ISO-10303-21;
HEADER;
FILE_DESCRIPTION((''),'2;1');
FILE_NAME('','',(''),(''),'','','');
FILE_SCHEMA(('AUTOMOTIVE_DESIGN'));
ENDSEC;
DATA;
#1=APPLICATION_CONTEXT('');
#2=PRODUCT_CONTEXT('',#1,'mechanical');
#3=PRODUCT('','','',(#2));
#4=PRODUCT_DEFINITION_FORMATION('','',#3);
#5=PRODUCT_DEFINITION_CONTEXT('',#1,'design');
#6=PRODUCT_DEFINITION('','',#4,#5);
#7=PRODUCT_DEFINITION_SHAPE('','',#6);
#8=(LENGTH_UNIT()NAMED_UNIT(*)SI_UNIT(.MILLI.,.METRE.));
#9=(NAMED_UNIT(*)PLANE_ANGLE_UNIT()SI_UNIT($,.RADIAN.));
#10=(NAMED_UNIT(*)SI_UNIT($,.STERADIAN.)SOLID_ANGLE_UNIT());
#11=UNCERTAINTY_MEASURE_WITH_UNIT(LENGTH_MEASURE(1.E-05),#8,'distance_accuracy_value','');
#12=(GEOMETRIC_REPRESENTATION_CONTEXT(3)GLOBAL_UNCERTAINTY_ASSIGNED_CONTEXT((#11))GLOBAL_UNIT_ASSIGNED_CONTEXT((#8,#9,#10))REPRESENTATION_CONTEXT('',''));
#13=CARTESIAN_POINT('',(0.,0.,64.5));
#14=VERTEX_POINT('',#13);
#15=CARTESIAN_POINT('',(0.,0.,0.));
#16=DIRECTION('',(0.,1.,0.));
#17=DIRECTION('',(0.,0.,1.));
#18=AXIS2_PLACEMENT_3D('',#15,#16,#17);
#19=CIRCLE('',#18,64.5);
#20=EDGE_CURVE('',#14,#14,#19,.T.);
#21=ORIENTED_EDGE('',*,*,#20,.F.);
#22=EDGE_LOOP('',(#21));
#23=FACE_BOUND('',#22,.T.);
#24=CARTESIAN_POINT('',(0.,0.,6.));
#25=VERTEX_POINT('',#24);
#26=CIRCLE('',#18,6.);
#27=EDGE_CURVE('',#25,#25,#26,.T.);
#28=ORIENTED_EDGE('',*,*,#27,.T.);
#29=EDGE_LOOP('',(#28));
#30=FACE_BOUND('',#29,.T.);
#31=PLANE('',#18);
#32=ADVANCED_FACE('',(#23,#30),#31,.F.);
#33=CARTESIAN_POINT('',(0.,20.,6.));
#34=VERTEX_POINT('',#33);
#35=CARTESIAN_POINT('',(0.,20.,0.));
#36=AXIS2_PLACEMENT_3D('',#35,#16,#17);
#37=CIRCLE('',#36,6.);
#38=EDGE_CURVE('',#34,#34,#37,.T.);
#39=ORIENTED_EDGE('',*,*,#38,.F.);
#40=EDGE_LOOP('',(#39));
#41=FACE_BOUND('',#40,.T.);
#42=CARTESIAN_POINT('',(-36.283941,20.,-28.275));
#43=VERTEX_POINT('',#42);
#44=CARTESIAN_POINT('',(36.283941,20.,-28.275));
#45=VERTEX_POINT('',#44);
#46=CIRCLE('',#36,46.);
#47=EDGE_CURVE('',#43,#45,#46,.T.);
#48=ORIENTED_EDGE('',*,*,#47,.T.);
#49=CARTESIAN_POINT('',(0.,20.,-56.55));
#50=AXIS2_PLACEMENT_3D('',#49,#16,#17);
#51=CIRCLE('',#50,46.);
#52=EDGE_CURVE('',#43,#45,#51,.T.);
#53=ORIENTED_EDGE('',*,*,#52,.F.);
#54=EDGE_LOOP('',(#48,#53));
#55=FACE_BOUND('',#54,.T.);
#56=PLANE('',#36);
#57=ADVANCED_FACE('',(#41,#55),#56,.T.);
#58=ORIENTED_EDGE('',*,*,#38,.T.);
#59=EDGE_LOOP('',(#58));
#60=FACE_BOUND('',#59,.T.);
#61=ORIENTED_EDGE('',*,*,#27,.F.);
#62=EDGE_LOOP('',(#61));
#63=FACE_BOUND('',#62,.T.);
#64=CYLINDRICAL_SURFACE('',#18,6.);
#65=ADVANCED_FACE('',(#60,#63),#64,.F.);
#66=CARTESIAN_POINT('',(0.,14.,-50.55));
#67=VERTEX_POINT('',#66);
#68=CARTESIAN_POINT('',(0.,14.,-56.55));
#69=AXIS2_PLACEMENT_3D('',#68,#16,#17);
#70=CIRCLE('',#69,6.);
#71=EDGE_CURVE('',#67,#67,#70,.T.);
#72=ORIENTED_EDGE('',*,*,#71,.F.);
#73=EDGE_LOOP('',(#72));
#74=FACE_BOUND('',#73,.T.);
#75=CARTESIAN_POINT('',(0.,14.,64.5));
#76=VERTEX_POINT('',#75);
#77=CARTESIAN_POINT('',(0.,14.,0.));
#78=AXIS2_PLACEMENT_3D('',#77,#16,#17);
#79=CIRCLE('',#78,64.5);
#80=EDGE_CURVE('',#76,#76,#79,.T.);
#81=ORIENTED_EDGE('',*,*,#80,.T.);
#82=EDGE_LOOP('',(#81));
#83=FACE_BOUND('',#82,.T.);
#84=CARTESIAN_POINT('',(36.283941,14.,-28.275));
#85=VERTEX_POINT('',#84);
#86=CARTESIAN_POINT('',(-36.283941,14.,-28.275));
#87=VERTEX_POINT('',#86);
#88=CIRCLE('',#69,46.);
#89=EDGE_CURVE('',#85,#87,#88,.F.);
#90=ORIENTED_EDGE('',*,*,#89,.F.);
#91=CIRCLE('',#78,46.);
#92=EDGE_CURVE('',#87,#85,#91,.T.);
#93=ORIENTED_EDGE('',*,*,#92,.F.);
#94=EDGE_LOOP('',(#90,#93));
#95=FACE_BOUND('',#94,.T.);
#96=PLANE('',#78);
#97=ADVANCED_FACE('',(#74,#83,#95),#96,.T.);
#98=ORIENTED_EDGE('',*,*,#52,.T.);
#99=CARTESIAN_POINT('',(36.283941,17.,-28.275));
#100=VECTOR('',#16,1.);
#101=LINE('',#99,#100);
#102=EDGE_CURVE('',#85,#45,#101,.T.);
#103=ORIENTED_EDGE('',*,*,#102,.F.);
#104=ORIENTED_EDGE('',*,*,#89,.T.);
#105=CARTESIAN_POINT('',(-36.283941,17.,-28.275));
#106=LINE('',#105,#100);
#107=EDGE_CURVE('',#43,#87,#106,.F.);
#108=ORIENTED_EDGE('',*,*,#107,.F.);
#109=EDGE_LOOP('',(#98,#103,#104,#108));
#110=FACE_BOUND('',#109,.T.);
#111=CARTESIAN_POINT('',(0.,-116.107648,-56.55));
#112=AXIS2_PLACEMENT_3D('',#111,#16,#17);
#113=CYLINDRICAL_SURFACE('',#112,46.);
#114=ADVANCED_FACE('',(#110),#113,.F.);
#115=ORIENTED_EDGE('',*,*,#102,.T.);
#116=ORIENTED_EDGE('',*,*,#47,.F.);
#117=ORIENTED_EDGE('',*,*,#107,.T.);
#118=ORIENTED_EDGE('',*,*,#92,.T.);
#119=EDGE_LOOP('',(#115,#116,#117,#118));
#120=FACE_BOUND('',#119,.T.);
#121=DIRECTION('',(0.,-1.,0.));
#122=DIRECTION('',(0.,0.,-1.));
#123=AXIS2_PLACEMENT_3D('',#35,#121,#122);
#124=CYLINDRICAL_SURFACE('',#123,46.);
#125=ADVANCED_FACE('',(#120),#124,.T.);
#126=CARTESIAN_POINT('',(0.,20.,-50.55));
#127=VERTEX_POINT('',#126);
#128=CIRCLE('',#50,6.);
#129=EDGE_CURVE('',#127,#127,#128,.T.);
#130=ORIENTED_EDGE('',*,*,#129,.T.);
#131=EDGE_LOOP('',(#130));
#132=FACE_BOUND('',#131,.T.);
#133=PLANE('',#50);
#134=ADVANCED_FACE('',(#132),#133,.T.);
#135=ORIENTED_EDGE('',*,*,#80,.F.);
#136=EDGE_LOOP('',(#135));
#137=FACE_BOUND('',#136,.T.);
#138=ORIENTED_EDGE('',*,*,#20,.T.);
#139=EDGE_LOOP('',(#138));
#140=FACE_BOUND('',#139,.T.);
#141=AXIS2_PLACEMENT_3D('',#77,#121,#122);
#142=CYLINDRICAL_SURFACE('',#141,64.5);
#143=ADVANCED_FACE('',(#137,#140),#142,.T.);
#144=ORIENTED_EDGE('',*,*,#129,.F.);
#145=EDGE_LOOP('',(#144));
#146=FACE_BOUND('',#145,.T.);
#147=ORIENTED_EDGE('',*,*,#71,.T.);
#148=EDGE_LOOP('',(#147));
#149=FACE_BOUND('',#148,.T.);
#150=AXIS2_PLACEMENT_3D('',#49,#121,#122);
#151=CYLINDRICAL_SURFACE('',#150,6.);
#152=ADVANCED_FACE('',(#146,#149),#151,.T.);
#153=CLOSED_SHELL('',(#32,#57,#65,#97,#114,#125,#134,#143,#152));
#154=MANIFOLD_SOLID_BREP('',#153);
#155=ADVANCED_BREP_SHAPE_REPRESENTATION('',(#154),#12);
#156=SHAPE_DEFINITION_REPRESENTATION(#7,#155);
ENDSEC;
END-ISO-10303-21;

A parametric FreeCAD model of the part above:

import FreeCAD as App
import Part
import Sketcher

V = App.Vector
Q = App.Units.Quantity

doc = App.newDocument("Part")
params = doc.addObject("Spreadsheet::Sheet", "Params")
for row, (alias, value) in enumerate([
    ("sketch1_diameter", "129 mm"),
    ("pad1_length", "14 mm"),
    ("sketch2_diameter", "92 mm"),
    ("pad2_length", "6 mm"),
    ("sketch3_diameter", "92 mm"),
    ("pocket1_length", "6 mm"),
    ("sketch4_diameter", "12 mm"),
    ("pad3_length", "6 mm"),
    ("sketch5_diameter", "12 mm"),
], start=1):
    params.set(f"A{row}", alias)
    params.set(f"B{row}", "=" + value)
    params.setAlias(f"B{row}", alias)

body = doc.addObject("PartDesign::Body", "Body")

sketch1 = doc.addObject("Sketcher::SketchObject", "Sketch")
body.addObject(sketch1)
sketch1.AttachmentSupport = (doc.XZ_Plane, [""])
sketch1.MapMode = "FlatFace"
sketch1.addGeometry(Part.Circle(V(0, 0, 0), V(0, 0, 1), 64.5), False)
sketch1.addConstraint(Sketcher.Constraint("Coincident", 0, 3, -1, 1))
sketch1.addConstraint(Sketcher.Constraint("Diameter", 0, Q("129 mm")))
sketch1.setExpression("Constraints[1]", "Params.sketch1_diameter")
pad1 = doc.addObject("PartDesign::Pad", "Pad")
body.addObject(pad1)
pad1.Profile = sketch1
pad1.setExpression("Length", "Params.pad1_length")
pad1.Reversed = True

sketch2 = doc.addObject("Sketcher::SketchObject", "Sketch001")
body.addObject(sketch2)
sketch2.AttachmentSupport = (doc.XZ_Plane, [""])
sketch2.MapMode = "FlatFace"
sketch2.AttachmentOffset = App.Placement(V(0, 0, -14), App.Rotation())
sketch2.addGeometry(Part.Circle(V(0, 0, 0), V(0, 0, 1), 46), False)
sketch2.addConstraint(Sketcher.Constraint("Coincident", 0, 3, -1, 1))
sketch2.addConstraint(Sketcher.Constraint("Diameter", 0, Q("92 mm")))
sketch2.setExpression("Constraints[1]", "Params.sketch2_diameter")
pad2 = doc.addObject("PartDesign::Pad", "Pad001")
body.addObject(pad2)
pad2.Profile = sketch2
pad2.setExpression("Length", "Params.pad2_length")
pad2.Reversed = True

sketch3 = doc.addObject("Sketcher::SketchObject", "Sketch002")
body.addObject(sketch3)
sketch3.AttachmentSupport = (doc.XZ_Plane, [""])
sketch3.MapMode = "FlatFace"
sketch3.AttachmentOffset = App.Placement(V(0, 0, -20), App.Rotation())
sketch3.addGeometry(Part.Circle(V(0, -56.55, 0), V(0, 0, 1), 46), False)
sketch3.addConstraint(Sketcher.Constraint("PointOnObject", 0, 3, -2))
sketch3.addConstraint(Sketcher.Constraint("Diameter", 0, Q("92 mm")))
sketch3.addConstraint(Sketcher.Constraint("DistanceY", 0, 3, -1, 1, Q("56.55 mm")))
sketch3.setExpression("Constraints[1]", "Params.sketch3_diameter")
pocket1 = doc.addObject("PartDesign::Pocket", "Pocket")
body.addObject(pocket1)
pocket1.Profile = sketch3
pocket1.setExpression("Length", "Params.pocket1_length")
pocket1.Reversed = True

sketch4 = doc.addObject("Sketcher::SketchObject", "Sketch003")
body.addObject(sketch4)
sketch4.AttachmentSupport = (doc.XZ_Plane, [""])
sketch4.MapMode = "FlatFace"
sketch4.AttachmentOffset = App.Placement(V(0, 0, -14), App.Rotation())
sketch4.addGeometry(Part.Circle(V(0, -56.55, 0), V(0, 0, 1), 6), False)
sketch4.addConstraint(Sketcher.Constraint("PointOnObject", 0, 3, -2))
sketch4.addConstraint(Sketcher.Constraint("Diameter", 0, Q("12 mm")))
sketch4.addConstraint(Sketcher.Constraint("DistanceY", 0, 3, -1, 1, Q("56.55 mm")))
sketch4.setExpression("Constraints[1]", "Params.sketch4_diameter")
pad3 = doc.addObject("PartDesign::Pad", "Pad002")
body.addObject(pad3)
pad3.Profile = sketch4
pad3.setExpression("Length", "Params.pad3_length")
pad3.Reversed = True

sketch5 = doc.addObject("Sketcher::SketchObject", "Sketch004")
body.addObject(sketch5)
sketch5.AttachmentSupport = (doc.XZ_Plane, [""])
sketch5.MapMode = "FlatFace"
sketch5.AttachmentOffset = App.Placement(V(0, 0, -20), App.Rotation())
sketch5.addGeometry(Part.Circle(V(0, 0, 0), V(0, 0, 1), 6), False)
sketch5.addConstraint(Sketcher.Constraint("Coincident", 0, 3, -1, 1))
sketch5.addConstraint(Sketcher.Constraint("Diameter", 0, Q("12 mm")))
sketch5.setExpression("Constraints[1]", "Params.sketch5_diameter")
pocket2 = doc.addObject("PartDesign::Pocket", "Pocket001")
body.addObject(pocket2)
pocket2.Profile = sketch5
pocket2.Type = "ThroughAll"
pocket2.Reversed = True

doc.recompute()
